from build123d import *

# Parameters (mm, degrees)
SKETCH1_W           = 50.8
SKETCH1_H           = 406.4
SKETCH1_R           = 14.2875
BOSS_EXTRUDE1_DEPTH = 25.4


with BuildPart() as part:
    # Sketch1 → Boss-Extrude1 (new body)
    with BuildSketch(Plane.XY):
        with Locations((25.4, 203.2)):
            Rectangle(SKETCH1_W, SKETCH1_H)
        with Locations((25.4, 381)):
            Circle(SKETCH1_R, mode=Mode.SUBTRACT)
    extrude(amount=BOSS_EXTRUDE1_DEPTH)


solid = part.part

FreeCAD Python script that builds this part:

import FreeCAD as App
import Part
import Sketcher
from FreeCAD import Vector
Q = App.Units.Quantity


def add_polygon(sketch, points):
    """Adds a closed chain of lines whose ends are joined by coincident constraints."""
    first, n = sketch.GeometryCount, len(points)
    for a, b in zip(points, points[1:] + points[:1]):
        sketch.addGeometry(Part.LineSegment(App.Vector(*a, 0), App.Vector(*b, 0)), False)
    for i in range(n):
        sketch.addConstraint(Sketcher.Constraint("Coincident", first + i, 2, first + (i + 1) % n, 1))

doc = App.newDocument("Part")
body = doc.addObject("PartDesign::Body", "Body")

sketch1 = body.newObject("Sketcher::SketchObject", "Sketch")
sketch1.AttachmentSupport = (doc.getObject("XY_Plane"), [""])
sketch1.MapMode = "FlatFace"
add_polygon(sketch1, [(0, 406.4), (0, 0), (50.8, 0), (50.8, 406.4)])
sketch1.addGeometry(Part.Circle(Vector(25.4, 381, 0), Vector(0, 0, 1), 14.2875), False)
sketch1.addConstraint([
    Sketcher.Constraint("Vertical", 0),
    Sketcher.Constraint("Horizontal", 1),
    Sketcher.Constraint("Vertical", 2),
    Sketcher.Constraint("Horizontal", 3),
    Sketcher.Constraint("Coincident", 0, 2, -1, 1),
    Sketcher.Constraint("DistanceX", 1, 1, 1, 2, Q("2 in")),
    Sketcher.Constraint("DistanceY", 0, 2, 0, 1, Q("16 in")),
    Sketcher.Constraint("Diameter", 4, Q("1.125 in")),
    Sketcher.Constraint("DistanceX", -1, 1, 4, 3, Q("1 in")),
    Sketcher.Constraint("DistanceY", -1, 1, 4, 3, Q("15 in")),
])
pad1 = body.newObject("PartDesign::Pad", "Pad")
pad1.Profile = sketch1
pad1.Length = Q("1 in")

doc.recompute()
